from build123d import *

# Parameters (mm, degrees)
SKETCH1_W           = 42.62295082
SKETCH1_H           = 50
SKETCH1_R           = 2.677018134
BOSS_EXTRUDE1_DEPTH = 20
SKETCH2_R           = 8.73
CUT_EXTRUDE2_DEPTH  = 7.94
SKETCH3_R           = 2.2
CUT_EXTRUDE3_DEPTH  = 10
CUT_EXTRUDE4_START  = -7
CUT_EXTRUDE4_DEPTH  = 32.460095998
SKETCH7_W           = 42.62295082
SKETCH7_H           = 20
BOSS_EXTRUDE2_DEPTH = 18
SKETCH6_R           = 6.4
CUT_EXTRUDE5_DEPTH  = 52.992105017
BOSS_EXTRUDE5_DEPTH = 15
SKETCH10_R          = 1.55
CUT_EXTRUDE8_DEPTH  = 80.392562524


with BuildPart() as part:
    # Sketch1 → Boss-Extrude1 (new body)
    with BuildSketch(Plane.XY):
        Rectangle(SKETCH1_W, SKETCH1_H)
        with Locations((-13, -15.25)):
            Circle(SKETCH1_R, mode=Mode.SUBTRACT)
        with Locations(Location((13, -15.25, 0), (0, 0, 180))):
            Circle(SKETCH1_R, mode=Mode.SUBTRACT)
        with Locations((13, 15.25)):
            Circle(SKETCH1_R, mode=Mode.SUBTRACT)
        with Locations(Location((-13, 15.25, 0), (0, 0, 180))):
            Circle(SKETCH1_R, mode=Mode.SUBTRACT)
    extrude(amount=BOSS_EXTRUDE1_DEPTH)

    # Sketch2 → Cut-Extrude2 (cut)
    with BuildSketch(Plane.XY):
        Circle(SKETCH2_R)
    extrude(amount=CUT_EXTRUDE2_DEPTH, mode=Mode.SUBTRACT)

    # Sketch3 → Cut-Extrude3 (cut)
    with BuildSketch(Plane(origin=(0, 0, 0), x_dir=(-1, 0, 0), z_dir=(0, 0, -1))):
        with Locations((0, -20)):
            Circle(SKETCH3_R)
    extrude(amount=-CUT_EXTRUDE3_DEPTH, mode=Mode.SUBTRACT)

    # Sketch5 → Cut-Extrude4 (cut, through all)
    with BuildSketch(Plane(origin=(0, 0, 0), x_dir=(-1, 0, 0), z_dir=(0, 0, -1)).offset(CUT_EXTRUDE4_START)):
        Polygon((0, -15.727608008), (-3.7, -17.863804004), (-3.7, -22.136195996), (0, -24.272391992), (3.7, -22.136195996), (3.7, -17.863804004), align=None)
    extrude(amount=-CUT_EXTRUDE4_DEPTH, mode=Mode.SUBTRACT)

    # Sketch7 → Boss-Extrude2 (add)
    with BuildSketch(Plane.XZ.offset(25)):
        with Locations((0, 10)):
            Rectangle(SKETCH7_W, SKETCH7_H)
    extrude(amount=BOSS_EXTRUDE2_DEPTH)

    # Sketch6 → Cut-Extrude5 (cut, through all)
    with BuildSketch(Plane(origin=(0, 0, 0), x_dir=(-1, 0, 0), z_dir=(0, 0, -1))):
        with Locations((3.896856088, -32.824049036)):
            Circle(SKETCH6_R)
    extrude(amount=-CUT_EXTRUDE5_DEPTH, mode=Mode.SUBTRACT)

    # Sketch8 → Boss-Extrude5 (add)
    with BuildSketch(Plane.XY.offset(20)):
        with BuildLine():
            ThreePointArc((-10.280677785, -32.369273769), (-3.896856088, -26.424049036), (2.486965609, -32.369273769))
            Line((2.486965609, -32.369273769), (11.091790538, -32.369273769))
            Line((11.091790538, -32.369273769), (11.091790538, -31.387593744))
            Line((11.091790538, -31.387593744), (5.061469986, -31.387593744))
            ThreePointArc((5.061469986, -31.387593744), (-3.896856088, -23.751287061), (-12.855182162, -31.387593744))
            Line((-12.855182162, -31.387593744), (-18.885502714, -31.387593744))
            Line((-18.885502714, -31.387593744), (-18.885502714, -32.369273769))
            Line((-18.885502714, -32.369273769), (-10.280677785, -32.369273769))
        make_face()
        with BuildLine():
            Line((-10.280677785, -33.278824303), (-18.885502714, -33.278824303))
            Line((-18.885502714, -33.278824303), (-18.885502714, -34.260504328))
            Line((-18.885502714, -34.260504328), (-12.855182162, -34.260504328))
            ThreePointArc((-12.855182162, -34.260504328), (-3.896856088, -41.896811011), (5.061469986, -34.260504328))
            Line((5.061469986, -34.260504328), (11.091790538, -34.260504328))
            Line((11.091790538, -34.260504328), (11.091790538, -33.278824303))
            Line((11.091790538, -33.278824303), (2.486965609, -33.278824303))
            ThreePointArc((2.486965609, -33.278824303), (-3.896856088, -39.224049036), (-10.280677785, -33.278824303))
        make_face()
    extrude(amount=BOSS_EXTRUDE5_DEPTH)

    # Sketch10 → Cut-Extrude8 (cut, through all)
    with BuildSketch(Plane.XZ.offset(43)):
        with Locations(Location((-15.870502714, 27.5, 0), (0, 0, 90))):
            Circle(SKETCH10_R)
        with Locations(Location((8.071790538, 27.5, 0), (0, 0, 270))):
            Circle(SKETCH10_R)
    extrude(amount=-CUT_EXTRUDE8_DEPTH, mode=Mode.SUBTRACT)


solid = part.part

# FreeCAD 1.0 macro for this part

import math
import FreeCAD as App
import Part
import Sketcher

V = App.Vector
Q = App.Units.Quantity

doc = App.newDocument("Part")
body = doc.addObject("PartDesign::Body", "Body")

# Sketch on XY plane
sketch1 = body.newObject("Sketcher::SketchObject", "Sketch")
sketch1.AttachmentSupport = (doc.getObject("XY_Plane"), [""])
sketch1.MapMode = "FlatFace"
sketch1.addGeometry(Part.LineSegment(V(-21.3, 25, 0), V(-21.3, -25, 0)), False)
sketch1.addGeometry(Part.LineSegment(V(-21.3, -25, 0), V(21.3, -25, 0)), False)
sketch1.addGeometry(Part.LineSegment(V(21.3, -25, 0), V(21.3, 25, 0)), False)
sketch1.addGeometry(Part.LineSegment(V(21.3, 25, 0), V(-21.3, 25, 0)), False)
sketch1.addGeometry(Part.Circle(V(-13, -15.2, 0), V(0, 0, 1), 2.7), False)
sketch1.addGeometry(Part.Circle(V(13, -15.2, 0), V(0, 0, 1), 2.7), False)
sketch1.addGeometry(Part.Circle(V(-13, 15.2, 0), V(0, 0, 1), 2.7), False)
sketch1.addGeometry(Part.Circle(V(13, 15.2, 0), V(0, 0, 1), 2.7), False)
sketch1.addConstraint(Sketcher.Constraint("Coincident", 0, 2, 1, 1))
sketch1.addConstraint(Sketcher.Constraint("Coincident", 1, 2, 2, 1))
sketch1.addConstraint(Sketcher.Constraint("Coincident", 2, 2, 3, 1))
sketch1.addConstraint(Sketcher.Constraint("Coincident", 3, 2, 0, 1))
sketch1.addConstraint(Sketcher.Constraint("Vertical", 0))
sketch1.addConstraint(Sketcher.Constraint("Horizontal", 1))
sketch1.addConstraint(Sketcher.Constraint("Vertical", 2))
sketch1.addConstraint(Sketcher.Constraint("Horizontal", 3))
sketch1.addConstraint(Sketcher.Constraint("Equal", 4, 5))
sketch1.addConstraint(Sketcher.Constraint("Equal", 5, 6))
sketch1.addConstraint(Sketcher.Constraint("Equal", 6, 7))
sketch1.addConstraint(Sketcher.Constraint("Symmetric", 5, 3, 6, 3, -1, 1))
sketch1.addConstraint(Sketcher.Constraint("Symmetric", 4, 3, 7, 3, -1, 1))
sketch1.addConstraint(Sketcher.Constraint("Symmetric", 0, 2, 2, 2, -1, 1))
sketch1.addConstraint(Sketcher.Constraint("Symmetric", 4, 3, 5, 3, -2))
sketch1.addConstraint(Sketcher.Constraint("DistanceY", 0, 2, 0, 1, Q("50 mm")))
sketch1.addConstraint(Sketcher.Constraint("DistanceX", 4, 3, -1, 1, Q("13 mm")))
sketch1.addConstraint(Sketcher.Constraint("DistanceY", 4, 3, 6, 3, Q("30.5 mm")))
sketch1.addConstraint(Sketcher.Constraint("Diameter", 4, Q("5.354036 mm")))
sketch1.addConstraint(Sketcher.Constraint("DistanceX", 1, 1, 1, 2, Q("42.622951 mm")))
pad1 = body.newObject("PartDesign::Pad", "Pad")
pad1.Profile = sketch1
pad1.Length = 20

# Sketch on XY plane
sketch2 = body.newObject("Sketcher::SketchObject", "Sketch001")
sketch2.AttachmentSupport = (doc.getObject("XY_Plane"), [""])
sketch2.MapMode = "FlatFace"
sketch2.addGeometry(Part.Circle(V(0, 0, 0), V(0, 0, 1), 9), False)
sketch2.addConstraint(Sketcher.Constraint("Coincident", 0, 3, -1, 1))
sketch2.addConstraint(Sketcher.Constraint("Diameter", 0, Q("17.46 mm")))
pocket1 = body.newObject("PartDesign::Pocket", "Pocket")
pocket1.Profile = sketch2
pocket1.Length = 7.94
pocket1.Reversed = True

# Sketch on XY plane
sketch3 = body.newObject("Sketcher::SketchObject", "Sketch002")
sketch3.AttachmentSupport = (doc.getObject("XY_Plane"), [""])
sketch3.MapMode = "FlatFace"
sketch3.addGeometry(Part.Circle(V(0, -20, 0), V(0, 0, 1), 2.2), False)
sketch3.addConstraint(Sketcher.Constraint("PointOnObject", 0, 3, -2))
sketch3.addConstraint(Sketcher.Constraint("Diameter", 0, Q("4.4 mm")))
sketch3.addConstraint(Sketcher.Constraint("DistanceY", 0, 3, -1, 1, Q("20 mm")))
pocket2 = body.newObject("PartDesign::Pocket", "Pocket001")
pocket2.Profile = sketch3
pocket2.Length = 10
pocket2.Reversed = True

# Sketch on XY plane
sketch4 = body.newObject("Sketcher::SketchObject", "Sketch003")
sketch4.AttachmentSupport = (doc.getObject("XY_Plane"), [""])
sketch4.MapMode = "FlatFace"
sketch4.AttachmentOffset = App.Placement(V(0, 0, 7), App.Rotation())
sketch4.addGeometry(Part.LineSegment(V(0, -15.7, 0), V(3.7, -17.9, 0)), False)
sketch4.addGeometry(Part.LineSegment(V(3.7, -17.9, 0), V(3.7, -22.1, 0)), False)
sketch4.addGeometry(Part.LineSegment(V(3.7, -22.1, 0), V(0, -24.3, 0)), False)
sketch4.addGeometry(Part.LineSegment(V(0, -24.3, 0), V(-3.7, -22.1, 0)), False)
sketch4.addGeometry(Part.LineSegment(V(-3.7, -22.1, 0), V(-3.7, -17.9, 0)), False)
sketch4.addGeometry(Part.LineSegment(V(-3.7, -17.9, 0), V(0, -15.7, 0)), False)
sketch4.addConstraint(Sketcher.Constraint("Coincident", 0, 2, 1, 1))
sketch4.addConstraint(Sketcher.Constraint("Coincident", 1, 2, 2, 1))
sketch4.addConstraint(Sketcher.Constraint("Coincident", 2, 2, 3, 1))
sketch4.addConstraint(Sketcher.Constraint("Coincident", 3, 2, 4, 1))
sketch4.addConstraint(Sketcher.Constraint("Coincident", 4, 2, 5, 1))
sketch4.addConstraint(Sketcher.Constraint("Coincident", 5, 2, 0, 1))
sketch4.addConstraint(Sketcher.Constraint("Vertical", 1))
sketch4.addConstraint(Sketcher.Constraint("Vertical", 4))
sketch4.addConstraint(Sketcher.Constraint("Symmetric", 1, 2, 3, 2, -2))
sketch4.addConstraint(Sketcher.Constraint("PointOnObject", 2, 2, -2))
sketch4.addConstraint(Sketcher.Constraint("PointOnObject", 5, 2, -2))
sketch4.addConstraint(Sketcher.Constraint("Parallel", 0, 3))
sketch4.addConstraint(Sketcher.Constraint("Parallel", 2, 5))
sketch4.addConstraint(Sketcher.Constraint("Angle", 0, Q("-30 deg")))
sketch4.addConstraint(Sketcher.Constraint("DistanceX", -1, 1, 0, 2, Q("3.7 mm")))
sketch4.addConstraint(Sketcher.Constraint("DistanceY", 1, 2, 1, 1, Q("4.272392 mm")))
sketch4.addConstraint(Sketcher.Constraint("DistanceY", 2, 2, -1, 1, Q("24.272392 mm")))
pocket3 = body.newObject("PartDesign::Pocket", "Pocket002")
pocket3.Profile = sketch4
pocket3.Type = "ThroughAll"
pocket3.Reversed = True

# Sketch on XZ plane
sketch5 = body.newObject("Sketcher::SketchObject", "Sketch004")
sketch5.AttachmentSupport = (doc.getObject("XZ_Plane"), [""])
sketch5.MapMode = "FlatFace"
sketch5.AttachmentOffset = App.Placement(V(0, 0, 25), App.Rotation())
sketch5.addGeometry(Part.LineSegment(V(-21, 20, 0), V(-21, 0, 0)), False)
sketch5.addGeometry(Part.LineSegment(V(-21, 0, 0), V(21, 0, 0)), False)
sketch5.addGeometry(Part.LineSegment(V(21, 0, 0), V(21, 20, 0)), False)
sketch5.addGeometry(Part.LineSegment(V(21, 20, 0), V(-21, 20, 0)), False)
sketch5.addConstraint(Sketcher.Constraint("Coincident", 0, 2, 1, 1))
sketch5.addConstraint(Sketcher.Constraint("Coincident", 1, 2, 2, 1))
sketch5.addConstraint(Sketcher.Constraint("Coincident", 2, 2, 3, 1))
sketch5.addConstraint(Sketcher.Constraint("Coincident", 3, 2, 0, 1))
sketch5.addConstraint(Sketcher.Constraint("Vertical", 0))
sketch5.addConstraint(Sketcher.Constraint("Horizontal", 1))
sketch5.addConstraint(Sketcher.Constraint("Vertical", 2))
sketch5.addConstraint(Sketcher.Constraint("Horizontal", 3))
sketch5.addConstraint(Sketcher.Constraint("Symmetric", 0, 2, 1, 2, -1, 1))
sketch5.addConstraint(Sketcher.Constraint("DistanceY", 0, 2, 0, 1, Q("20 mm")))
sketch5.addConstraint(Sketcher.Constraint("DistanceX", 1, 1, 1, 2, Q("42.622951 mm")))
pad2 = body.newObject("PartDesign::Pad", "Pad001")
pad2.Profile = sketch5
pad2.Length = 18

# Sketch on XY plane
sketch6 = body.newObject("Sketcher::SketchObject", "Sketch005")
sketch6.AttachmentSupport = (doc.getObject("XY_Plane"), [""])
sketch6.MapMode = "FlatFace"
sketch6.addGeometry(Part.Circle(V(-4, -33, 0), V(0, 0, 1), 6), False)
sketch6.addConstraint(Sketcher.Constraint("Diameter", 0, Q("12.8 mm")))
sketch6.addConstraint(Sketcher.Constraint("DistanceY", 0, 3, -1, 1, Q("32.824049 mm")))
sketch6.addConstraint(Sketcher.Constraint("DistanceX", 0, 3, -1, 1, Q("3.896856 mm")))
pocket4 = body.newObject("PartDesign::Pocket", "Pocket003")
pocket4.Profile = sketch6
pocket4.Type = "ThroughAll"
pocket4.Reversed = True

# Sketch on XY plane
sketch7 = body.newObject("Sketcher::SketchObject", "Sketch006")
sketch7.AttachmentSupport = (doc.getObject("XY_Plane"), [""])
sketch7.MapMode = "FlatFace"
sketch7.AttachmentOffset = App.Placement(V(0, 0, 20), App.Rotation())
sketch7.addGeometry(Part.ArcOfCircle(Part.Circle(V(-3.9, -32.8, 0), V(0, 0, 1), 6.4), math.radians(4), math.radians(176)), False)
sketch7.addGeometry(Part.LineSegment(V(2.5, -32.4, 0), V(11.1, -32.4, 0)), False)
sketch7.addGeometry(Part.LineSegment(V(11.1, -32.4, 0), V(11.1, -31.4, 0)), False)
sketch7.addGeometry(Part.LineSegment(V(11.1, -31.4, 0), V(5.1, -31.4, 0)), False)
sketch7.addGeometry(Part.ArcOfCircle(Part.Circle(V(-3.9, -32.8, 0), V(0, 0, 1), 9.1), math.radians(9), math.radians(171)), False)
sketch7.addGeometry(Part.LineSegment(V(-12.9, -31.4, 0), V(-18.9, -31.4, 0)), False)
sketch7.addGeometry(Part.LineSegment(V(-18.9, -31.4, 0), V(-18.9, -32.4, 0)), False)
sketch7.addGeometry(Part.LineSegment(V(-18.9, -32.4, 0), V(-10.3, -32.4, 0)), False)
sketch7.addGeometry(Part.LineSegment(V(-10.3, -33.3, 0), V(-18.9, -33.3, 0)), False)
sketch7.addGeometry(Part.LineSegment(V(-18.9, -33.3, 0), V(-18.9, -34.3, 0)), False)
sketch7.addGeometry(Part.LineSegment(V(-18.9, -34.3, 0), V(-12.9, -34.3, 0)), False)
sketch7.addGeometry(Part.ArcOfCircle(Part.Circle(V(-3.9, -32.8, 0), V(0, 0, 1), 9.1), math.radians(-171), math.radians(-9)), False)
sketch7.addGeometry(Part.LineSegment(V(5.1, -34.3, 0), V(11.1, -34.3, 0)), False)
sketch7.addGeometry(Part.LineSegment(V(11.1, -34.3, 0), V(11.1, -33.3, 0)), False)
sketch7.addGeometry(Part.LineSegment(V(11.1, -33.3, 0), V(2.5, -33.3, 0)), False)
sketch7.addGeometry(Part.ArcOfCircle(Part.Circle(V(-3.9, -32.8, 0), V(0, 0, 1), 6.4), math.radians(-176), math.radians(-4)), False)
sketch7.addConstraint(Sketcher.Constraint("Coincident", 0, 1, 1, 1))
sketch7.addConstraint(Sketcher.Constraint("Coincident", 1, 2, 2, 1))
sketch7.addConstraint(Sketcher.Constraint("Coincident", 2, 2, 3, 1))
sketch7.addConstraint(Sketcher.Constraint("Coincident", 3, 2, 4, 1))
sketch7.addConstraint(Sketcher.Constraint("Coincident", 4, 2, 5, 1))
sketch7.addConstraint(Sketcher.Constraint("Coincident", 5, 2, 6, 1))
sketch7.addConstraint(Sketcher.Constraint("Coincident", 6, 2, 7, 1))
sketch7.addConstraint(Sketcher.Constraint("Coincident", 7, 2, 0, 2))
sketch7.addConstraint(Sketcher.Constraint("Coincident", 8, 2, 9, 1))
sketch7.addConstraint(Sketcher.Constraint("Coincident", 9, 2, 10, 1))
sketch7.addConstraint(Sketcher.Constraint("Coincident", 10, 2, 11, 1))
sketch7.addConstraint(Sketcher.Constraint("Coincident", 11, 2, 12, 1))
sketch7.addConstraint(Sketcher.Constraint("Coincident", 12, 2, 13, 1))
sketch7.addConstraint(Sketcher.Constraint("Coincident", 13, 2, 14, 1))
sketch7.addConstraint(Sketcher.Constraint("Coincident", 14, 2, 15, 2))
sketch7.addConstraint(Sketcher.Constraint("Coincident", 15, 1, 8, 1))
sketch7.addConstraint(Sketcher.Constraint("Horizontal", 1))
sketch7.addConstraint(Sketcher.Constraint("Vertical", 2))
sketch7.addConstraint(Sketcher.Constraint("Horizontal", 3))
sketch7.addConstraint(Sketcher.Constraint("Horizontal", 5))
sketch7.addConstraint(Sketcher.Constraint("Vertical", 6))
sketch7.addConstraint(Sketcher.Constraint("Horizontal", 7))
sketch7.addConstraint(Sketcher.Constraint("Horizontal", 8))
sketch7.addConstraint(Sketcher.Constraint("Vertical", 9))
sketch7.addConstraint(Sketcher.Constraint("Horizontal", 10))
sketch7.addConstraint(Sketcher.Constraint("Horizontal", 12))
sketch7.addConstraint(Sketcher.Constraint("Vertical", 13))
sketch7.addConstraint(Sketcher.Constraint("Horizontal", 14))
sketch7.addConstraint(Sketcher.Constraint("Coincident", 4, 3, 0, 3))
sketch7.addConstraint(Sketcher.Constraint("Coincident", 11, 3, 0, 3))
sketch7.addConstraint(Sketcher.Constraint("Coincident", 15, 3, 0, 3))
sketch7.addConstraint(Sketcher.Constraint("Equal", 4, 11))
sketch7.addConstraint(Sketcher.Constraint("Equal", 0, 15))
sketch7.addConstraint(Sketcher.Constraint("Horizontal", 3, 2, 4, 2))
sketch7.addConstraint(Sketcher.Constraint("Horizontal", 1, 2, 6, 2))
sketch7.addConstraint(Sketcher.Constraint("Horizontal", 10, 2, 11, 2))
sketch7.addConstraint(Sketcher.Constraint("Horizontal", 8, 2, 13, 2))
sketch7.addConstraint(Sketcher.Constraint("Vertical", 6, 2, 8, 2))
sketch7.addConstraint(Sketcher.Constraint("Vertical", 4, 2, 10, 2))
sketch7.addConstraint(Sketcher.Constraint("Vertical", 2, 2, 12, 2))
sketch7.addConstraint(Sketcher.Constraint("Vertical", 0, 1, 14, 2))
sketch7.addConstraint(Sketcher.Constraint("Equal", 3, 5))
sketch7.addConstraint(Sketcher.Constraint("Radius", 0, Q("6.4 mm")))
sketch7.addConstraint(Sketcher.Constraint("Radius", 4, Q("9.072762 mm")))
sketch7.addConstraint(Sketcher.Constraint("DistanceX", 3, 2, 3, 1, Q("6.030321 mm")))
sketch7.addConstraint(Sketcher.Constraint("DistanceY", 2, 1, 2, 2, Q("0.98168 mm")))
sketch7.addConstraint(Sketcher.Constraint("DistanceX", 1, 1, 1, 2, Q("8.604825 mm")))
sketch7.addConstraint(Sketcher.Constraint("DistanceY", 0, 3, -1, 1, Q("32.824049 mm")))
sketch7.addConstraint(Sketcher.Constraint("DistanceX", -1, 1, 1, 2, Q("11.091791 mm")))
pad3 = body.newObject("PartDesign::Pad", "Pad002")
pad3.Profile = sketch7
pad3.Length = 15

# Sketch on XZ plane
sketch8 = body.newObject("Sketcher::SketchObject", "Sketch007")
sketch8.AttachmentSupport = (doc.getObject("XZ_Plane"), [""])
sketch8.MapMode = "FlatFace"
sketch8.AttachmentOffset = App.Placement(V(0, 0, 43), App.Rotation())
sketch8.addGeometry(Part.Circle(V(-15.9, 27.5, 0), V(0, 0, 1), 1.6), False)
sketch8.addGeometry(Part.Circle(V(8.1, 27.5, 0), V(0, 0, 1), 1.6), False)
sketch8.addConstraint(Sketcher.Constraint("Equal", 0, 1))
sketch8.addConstraint(Sketcher.Constraint("Horizontal", 0, 3, 1, 3))
sketch8.addConstraint(Sketcher.Constraint("Diameter", 0, Q("3.1 mm")))
sketch8.addConstraint(Sketcher.Constraint("DistanceY", -1, 1, 0, 3, Q("27.5 mm")))
sketch8.addConstraint(Sketcher.Constraint("DistanceX", -1, 1, 1, 3, Q("8.071791 mm")))
sketch8.addConstraint(Sketcher.Constraint("DistanceX", 0, 3, -1, 1, Q("15.870503 mm")))
pocket5 = body.newObject("PartDesign::Pocket", "Pocket004")
pocket5.Profile = sketch8
pocket5.Type = "ThroughAll"

doc.recompute()
